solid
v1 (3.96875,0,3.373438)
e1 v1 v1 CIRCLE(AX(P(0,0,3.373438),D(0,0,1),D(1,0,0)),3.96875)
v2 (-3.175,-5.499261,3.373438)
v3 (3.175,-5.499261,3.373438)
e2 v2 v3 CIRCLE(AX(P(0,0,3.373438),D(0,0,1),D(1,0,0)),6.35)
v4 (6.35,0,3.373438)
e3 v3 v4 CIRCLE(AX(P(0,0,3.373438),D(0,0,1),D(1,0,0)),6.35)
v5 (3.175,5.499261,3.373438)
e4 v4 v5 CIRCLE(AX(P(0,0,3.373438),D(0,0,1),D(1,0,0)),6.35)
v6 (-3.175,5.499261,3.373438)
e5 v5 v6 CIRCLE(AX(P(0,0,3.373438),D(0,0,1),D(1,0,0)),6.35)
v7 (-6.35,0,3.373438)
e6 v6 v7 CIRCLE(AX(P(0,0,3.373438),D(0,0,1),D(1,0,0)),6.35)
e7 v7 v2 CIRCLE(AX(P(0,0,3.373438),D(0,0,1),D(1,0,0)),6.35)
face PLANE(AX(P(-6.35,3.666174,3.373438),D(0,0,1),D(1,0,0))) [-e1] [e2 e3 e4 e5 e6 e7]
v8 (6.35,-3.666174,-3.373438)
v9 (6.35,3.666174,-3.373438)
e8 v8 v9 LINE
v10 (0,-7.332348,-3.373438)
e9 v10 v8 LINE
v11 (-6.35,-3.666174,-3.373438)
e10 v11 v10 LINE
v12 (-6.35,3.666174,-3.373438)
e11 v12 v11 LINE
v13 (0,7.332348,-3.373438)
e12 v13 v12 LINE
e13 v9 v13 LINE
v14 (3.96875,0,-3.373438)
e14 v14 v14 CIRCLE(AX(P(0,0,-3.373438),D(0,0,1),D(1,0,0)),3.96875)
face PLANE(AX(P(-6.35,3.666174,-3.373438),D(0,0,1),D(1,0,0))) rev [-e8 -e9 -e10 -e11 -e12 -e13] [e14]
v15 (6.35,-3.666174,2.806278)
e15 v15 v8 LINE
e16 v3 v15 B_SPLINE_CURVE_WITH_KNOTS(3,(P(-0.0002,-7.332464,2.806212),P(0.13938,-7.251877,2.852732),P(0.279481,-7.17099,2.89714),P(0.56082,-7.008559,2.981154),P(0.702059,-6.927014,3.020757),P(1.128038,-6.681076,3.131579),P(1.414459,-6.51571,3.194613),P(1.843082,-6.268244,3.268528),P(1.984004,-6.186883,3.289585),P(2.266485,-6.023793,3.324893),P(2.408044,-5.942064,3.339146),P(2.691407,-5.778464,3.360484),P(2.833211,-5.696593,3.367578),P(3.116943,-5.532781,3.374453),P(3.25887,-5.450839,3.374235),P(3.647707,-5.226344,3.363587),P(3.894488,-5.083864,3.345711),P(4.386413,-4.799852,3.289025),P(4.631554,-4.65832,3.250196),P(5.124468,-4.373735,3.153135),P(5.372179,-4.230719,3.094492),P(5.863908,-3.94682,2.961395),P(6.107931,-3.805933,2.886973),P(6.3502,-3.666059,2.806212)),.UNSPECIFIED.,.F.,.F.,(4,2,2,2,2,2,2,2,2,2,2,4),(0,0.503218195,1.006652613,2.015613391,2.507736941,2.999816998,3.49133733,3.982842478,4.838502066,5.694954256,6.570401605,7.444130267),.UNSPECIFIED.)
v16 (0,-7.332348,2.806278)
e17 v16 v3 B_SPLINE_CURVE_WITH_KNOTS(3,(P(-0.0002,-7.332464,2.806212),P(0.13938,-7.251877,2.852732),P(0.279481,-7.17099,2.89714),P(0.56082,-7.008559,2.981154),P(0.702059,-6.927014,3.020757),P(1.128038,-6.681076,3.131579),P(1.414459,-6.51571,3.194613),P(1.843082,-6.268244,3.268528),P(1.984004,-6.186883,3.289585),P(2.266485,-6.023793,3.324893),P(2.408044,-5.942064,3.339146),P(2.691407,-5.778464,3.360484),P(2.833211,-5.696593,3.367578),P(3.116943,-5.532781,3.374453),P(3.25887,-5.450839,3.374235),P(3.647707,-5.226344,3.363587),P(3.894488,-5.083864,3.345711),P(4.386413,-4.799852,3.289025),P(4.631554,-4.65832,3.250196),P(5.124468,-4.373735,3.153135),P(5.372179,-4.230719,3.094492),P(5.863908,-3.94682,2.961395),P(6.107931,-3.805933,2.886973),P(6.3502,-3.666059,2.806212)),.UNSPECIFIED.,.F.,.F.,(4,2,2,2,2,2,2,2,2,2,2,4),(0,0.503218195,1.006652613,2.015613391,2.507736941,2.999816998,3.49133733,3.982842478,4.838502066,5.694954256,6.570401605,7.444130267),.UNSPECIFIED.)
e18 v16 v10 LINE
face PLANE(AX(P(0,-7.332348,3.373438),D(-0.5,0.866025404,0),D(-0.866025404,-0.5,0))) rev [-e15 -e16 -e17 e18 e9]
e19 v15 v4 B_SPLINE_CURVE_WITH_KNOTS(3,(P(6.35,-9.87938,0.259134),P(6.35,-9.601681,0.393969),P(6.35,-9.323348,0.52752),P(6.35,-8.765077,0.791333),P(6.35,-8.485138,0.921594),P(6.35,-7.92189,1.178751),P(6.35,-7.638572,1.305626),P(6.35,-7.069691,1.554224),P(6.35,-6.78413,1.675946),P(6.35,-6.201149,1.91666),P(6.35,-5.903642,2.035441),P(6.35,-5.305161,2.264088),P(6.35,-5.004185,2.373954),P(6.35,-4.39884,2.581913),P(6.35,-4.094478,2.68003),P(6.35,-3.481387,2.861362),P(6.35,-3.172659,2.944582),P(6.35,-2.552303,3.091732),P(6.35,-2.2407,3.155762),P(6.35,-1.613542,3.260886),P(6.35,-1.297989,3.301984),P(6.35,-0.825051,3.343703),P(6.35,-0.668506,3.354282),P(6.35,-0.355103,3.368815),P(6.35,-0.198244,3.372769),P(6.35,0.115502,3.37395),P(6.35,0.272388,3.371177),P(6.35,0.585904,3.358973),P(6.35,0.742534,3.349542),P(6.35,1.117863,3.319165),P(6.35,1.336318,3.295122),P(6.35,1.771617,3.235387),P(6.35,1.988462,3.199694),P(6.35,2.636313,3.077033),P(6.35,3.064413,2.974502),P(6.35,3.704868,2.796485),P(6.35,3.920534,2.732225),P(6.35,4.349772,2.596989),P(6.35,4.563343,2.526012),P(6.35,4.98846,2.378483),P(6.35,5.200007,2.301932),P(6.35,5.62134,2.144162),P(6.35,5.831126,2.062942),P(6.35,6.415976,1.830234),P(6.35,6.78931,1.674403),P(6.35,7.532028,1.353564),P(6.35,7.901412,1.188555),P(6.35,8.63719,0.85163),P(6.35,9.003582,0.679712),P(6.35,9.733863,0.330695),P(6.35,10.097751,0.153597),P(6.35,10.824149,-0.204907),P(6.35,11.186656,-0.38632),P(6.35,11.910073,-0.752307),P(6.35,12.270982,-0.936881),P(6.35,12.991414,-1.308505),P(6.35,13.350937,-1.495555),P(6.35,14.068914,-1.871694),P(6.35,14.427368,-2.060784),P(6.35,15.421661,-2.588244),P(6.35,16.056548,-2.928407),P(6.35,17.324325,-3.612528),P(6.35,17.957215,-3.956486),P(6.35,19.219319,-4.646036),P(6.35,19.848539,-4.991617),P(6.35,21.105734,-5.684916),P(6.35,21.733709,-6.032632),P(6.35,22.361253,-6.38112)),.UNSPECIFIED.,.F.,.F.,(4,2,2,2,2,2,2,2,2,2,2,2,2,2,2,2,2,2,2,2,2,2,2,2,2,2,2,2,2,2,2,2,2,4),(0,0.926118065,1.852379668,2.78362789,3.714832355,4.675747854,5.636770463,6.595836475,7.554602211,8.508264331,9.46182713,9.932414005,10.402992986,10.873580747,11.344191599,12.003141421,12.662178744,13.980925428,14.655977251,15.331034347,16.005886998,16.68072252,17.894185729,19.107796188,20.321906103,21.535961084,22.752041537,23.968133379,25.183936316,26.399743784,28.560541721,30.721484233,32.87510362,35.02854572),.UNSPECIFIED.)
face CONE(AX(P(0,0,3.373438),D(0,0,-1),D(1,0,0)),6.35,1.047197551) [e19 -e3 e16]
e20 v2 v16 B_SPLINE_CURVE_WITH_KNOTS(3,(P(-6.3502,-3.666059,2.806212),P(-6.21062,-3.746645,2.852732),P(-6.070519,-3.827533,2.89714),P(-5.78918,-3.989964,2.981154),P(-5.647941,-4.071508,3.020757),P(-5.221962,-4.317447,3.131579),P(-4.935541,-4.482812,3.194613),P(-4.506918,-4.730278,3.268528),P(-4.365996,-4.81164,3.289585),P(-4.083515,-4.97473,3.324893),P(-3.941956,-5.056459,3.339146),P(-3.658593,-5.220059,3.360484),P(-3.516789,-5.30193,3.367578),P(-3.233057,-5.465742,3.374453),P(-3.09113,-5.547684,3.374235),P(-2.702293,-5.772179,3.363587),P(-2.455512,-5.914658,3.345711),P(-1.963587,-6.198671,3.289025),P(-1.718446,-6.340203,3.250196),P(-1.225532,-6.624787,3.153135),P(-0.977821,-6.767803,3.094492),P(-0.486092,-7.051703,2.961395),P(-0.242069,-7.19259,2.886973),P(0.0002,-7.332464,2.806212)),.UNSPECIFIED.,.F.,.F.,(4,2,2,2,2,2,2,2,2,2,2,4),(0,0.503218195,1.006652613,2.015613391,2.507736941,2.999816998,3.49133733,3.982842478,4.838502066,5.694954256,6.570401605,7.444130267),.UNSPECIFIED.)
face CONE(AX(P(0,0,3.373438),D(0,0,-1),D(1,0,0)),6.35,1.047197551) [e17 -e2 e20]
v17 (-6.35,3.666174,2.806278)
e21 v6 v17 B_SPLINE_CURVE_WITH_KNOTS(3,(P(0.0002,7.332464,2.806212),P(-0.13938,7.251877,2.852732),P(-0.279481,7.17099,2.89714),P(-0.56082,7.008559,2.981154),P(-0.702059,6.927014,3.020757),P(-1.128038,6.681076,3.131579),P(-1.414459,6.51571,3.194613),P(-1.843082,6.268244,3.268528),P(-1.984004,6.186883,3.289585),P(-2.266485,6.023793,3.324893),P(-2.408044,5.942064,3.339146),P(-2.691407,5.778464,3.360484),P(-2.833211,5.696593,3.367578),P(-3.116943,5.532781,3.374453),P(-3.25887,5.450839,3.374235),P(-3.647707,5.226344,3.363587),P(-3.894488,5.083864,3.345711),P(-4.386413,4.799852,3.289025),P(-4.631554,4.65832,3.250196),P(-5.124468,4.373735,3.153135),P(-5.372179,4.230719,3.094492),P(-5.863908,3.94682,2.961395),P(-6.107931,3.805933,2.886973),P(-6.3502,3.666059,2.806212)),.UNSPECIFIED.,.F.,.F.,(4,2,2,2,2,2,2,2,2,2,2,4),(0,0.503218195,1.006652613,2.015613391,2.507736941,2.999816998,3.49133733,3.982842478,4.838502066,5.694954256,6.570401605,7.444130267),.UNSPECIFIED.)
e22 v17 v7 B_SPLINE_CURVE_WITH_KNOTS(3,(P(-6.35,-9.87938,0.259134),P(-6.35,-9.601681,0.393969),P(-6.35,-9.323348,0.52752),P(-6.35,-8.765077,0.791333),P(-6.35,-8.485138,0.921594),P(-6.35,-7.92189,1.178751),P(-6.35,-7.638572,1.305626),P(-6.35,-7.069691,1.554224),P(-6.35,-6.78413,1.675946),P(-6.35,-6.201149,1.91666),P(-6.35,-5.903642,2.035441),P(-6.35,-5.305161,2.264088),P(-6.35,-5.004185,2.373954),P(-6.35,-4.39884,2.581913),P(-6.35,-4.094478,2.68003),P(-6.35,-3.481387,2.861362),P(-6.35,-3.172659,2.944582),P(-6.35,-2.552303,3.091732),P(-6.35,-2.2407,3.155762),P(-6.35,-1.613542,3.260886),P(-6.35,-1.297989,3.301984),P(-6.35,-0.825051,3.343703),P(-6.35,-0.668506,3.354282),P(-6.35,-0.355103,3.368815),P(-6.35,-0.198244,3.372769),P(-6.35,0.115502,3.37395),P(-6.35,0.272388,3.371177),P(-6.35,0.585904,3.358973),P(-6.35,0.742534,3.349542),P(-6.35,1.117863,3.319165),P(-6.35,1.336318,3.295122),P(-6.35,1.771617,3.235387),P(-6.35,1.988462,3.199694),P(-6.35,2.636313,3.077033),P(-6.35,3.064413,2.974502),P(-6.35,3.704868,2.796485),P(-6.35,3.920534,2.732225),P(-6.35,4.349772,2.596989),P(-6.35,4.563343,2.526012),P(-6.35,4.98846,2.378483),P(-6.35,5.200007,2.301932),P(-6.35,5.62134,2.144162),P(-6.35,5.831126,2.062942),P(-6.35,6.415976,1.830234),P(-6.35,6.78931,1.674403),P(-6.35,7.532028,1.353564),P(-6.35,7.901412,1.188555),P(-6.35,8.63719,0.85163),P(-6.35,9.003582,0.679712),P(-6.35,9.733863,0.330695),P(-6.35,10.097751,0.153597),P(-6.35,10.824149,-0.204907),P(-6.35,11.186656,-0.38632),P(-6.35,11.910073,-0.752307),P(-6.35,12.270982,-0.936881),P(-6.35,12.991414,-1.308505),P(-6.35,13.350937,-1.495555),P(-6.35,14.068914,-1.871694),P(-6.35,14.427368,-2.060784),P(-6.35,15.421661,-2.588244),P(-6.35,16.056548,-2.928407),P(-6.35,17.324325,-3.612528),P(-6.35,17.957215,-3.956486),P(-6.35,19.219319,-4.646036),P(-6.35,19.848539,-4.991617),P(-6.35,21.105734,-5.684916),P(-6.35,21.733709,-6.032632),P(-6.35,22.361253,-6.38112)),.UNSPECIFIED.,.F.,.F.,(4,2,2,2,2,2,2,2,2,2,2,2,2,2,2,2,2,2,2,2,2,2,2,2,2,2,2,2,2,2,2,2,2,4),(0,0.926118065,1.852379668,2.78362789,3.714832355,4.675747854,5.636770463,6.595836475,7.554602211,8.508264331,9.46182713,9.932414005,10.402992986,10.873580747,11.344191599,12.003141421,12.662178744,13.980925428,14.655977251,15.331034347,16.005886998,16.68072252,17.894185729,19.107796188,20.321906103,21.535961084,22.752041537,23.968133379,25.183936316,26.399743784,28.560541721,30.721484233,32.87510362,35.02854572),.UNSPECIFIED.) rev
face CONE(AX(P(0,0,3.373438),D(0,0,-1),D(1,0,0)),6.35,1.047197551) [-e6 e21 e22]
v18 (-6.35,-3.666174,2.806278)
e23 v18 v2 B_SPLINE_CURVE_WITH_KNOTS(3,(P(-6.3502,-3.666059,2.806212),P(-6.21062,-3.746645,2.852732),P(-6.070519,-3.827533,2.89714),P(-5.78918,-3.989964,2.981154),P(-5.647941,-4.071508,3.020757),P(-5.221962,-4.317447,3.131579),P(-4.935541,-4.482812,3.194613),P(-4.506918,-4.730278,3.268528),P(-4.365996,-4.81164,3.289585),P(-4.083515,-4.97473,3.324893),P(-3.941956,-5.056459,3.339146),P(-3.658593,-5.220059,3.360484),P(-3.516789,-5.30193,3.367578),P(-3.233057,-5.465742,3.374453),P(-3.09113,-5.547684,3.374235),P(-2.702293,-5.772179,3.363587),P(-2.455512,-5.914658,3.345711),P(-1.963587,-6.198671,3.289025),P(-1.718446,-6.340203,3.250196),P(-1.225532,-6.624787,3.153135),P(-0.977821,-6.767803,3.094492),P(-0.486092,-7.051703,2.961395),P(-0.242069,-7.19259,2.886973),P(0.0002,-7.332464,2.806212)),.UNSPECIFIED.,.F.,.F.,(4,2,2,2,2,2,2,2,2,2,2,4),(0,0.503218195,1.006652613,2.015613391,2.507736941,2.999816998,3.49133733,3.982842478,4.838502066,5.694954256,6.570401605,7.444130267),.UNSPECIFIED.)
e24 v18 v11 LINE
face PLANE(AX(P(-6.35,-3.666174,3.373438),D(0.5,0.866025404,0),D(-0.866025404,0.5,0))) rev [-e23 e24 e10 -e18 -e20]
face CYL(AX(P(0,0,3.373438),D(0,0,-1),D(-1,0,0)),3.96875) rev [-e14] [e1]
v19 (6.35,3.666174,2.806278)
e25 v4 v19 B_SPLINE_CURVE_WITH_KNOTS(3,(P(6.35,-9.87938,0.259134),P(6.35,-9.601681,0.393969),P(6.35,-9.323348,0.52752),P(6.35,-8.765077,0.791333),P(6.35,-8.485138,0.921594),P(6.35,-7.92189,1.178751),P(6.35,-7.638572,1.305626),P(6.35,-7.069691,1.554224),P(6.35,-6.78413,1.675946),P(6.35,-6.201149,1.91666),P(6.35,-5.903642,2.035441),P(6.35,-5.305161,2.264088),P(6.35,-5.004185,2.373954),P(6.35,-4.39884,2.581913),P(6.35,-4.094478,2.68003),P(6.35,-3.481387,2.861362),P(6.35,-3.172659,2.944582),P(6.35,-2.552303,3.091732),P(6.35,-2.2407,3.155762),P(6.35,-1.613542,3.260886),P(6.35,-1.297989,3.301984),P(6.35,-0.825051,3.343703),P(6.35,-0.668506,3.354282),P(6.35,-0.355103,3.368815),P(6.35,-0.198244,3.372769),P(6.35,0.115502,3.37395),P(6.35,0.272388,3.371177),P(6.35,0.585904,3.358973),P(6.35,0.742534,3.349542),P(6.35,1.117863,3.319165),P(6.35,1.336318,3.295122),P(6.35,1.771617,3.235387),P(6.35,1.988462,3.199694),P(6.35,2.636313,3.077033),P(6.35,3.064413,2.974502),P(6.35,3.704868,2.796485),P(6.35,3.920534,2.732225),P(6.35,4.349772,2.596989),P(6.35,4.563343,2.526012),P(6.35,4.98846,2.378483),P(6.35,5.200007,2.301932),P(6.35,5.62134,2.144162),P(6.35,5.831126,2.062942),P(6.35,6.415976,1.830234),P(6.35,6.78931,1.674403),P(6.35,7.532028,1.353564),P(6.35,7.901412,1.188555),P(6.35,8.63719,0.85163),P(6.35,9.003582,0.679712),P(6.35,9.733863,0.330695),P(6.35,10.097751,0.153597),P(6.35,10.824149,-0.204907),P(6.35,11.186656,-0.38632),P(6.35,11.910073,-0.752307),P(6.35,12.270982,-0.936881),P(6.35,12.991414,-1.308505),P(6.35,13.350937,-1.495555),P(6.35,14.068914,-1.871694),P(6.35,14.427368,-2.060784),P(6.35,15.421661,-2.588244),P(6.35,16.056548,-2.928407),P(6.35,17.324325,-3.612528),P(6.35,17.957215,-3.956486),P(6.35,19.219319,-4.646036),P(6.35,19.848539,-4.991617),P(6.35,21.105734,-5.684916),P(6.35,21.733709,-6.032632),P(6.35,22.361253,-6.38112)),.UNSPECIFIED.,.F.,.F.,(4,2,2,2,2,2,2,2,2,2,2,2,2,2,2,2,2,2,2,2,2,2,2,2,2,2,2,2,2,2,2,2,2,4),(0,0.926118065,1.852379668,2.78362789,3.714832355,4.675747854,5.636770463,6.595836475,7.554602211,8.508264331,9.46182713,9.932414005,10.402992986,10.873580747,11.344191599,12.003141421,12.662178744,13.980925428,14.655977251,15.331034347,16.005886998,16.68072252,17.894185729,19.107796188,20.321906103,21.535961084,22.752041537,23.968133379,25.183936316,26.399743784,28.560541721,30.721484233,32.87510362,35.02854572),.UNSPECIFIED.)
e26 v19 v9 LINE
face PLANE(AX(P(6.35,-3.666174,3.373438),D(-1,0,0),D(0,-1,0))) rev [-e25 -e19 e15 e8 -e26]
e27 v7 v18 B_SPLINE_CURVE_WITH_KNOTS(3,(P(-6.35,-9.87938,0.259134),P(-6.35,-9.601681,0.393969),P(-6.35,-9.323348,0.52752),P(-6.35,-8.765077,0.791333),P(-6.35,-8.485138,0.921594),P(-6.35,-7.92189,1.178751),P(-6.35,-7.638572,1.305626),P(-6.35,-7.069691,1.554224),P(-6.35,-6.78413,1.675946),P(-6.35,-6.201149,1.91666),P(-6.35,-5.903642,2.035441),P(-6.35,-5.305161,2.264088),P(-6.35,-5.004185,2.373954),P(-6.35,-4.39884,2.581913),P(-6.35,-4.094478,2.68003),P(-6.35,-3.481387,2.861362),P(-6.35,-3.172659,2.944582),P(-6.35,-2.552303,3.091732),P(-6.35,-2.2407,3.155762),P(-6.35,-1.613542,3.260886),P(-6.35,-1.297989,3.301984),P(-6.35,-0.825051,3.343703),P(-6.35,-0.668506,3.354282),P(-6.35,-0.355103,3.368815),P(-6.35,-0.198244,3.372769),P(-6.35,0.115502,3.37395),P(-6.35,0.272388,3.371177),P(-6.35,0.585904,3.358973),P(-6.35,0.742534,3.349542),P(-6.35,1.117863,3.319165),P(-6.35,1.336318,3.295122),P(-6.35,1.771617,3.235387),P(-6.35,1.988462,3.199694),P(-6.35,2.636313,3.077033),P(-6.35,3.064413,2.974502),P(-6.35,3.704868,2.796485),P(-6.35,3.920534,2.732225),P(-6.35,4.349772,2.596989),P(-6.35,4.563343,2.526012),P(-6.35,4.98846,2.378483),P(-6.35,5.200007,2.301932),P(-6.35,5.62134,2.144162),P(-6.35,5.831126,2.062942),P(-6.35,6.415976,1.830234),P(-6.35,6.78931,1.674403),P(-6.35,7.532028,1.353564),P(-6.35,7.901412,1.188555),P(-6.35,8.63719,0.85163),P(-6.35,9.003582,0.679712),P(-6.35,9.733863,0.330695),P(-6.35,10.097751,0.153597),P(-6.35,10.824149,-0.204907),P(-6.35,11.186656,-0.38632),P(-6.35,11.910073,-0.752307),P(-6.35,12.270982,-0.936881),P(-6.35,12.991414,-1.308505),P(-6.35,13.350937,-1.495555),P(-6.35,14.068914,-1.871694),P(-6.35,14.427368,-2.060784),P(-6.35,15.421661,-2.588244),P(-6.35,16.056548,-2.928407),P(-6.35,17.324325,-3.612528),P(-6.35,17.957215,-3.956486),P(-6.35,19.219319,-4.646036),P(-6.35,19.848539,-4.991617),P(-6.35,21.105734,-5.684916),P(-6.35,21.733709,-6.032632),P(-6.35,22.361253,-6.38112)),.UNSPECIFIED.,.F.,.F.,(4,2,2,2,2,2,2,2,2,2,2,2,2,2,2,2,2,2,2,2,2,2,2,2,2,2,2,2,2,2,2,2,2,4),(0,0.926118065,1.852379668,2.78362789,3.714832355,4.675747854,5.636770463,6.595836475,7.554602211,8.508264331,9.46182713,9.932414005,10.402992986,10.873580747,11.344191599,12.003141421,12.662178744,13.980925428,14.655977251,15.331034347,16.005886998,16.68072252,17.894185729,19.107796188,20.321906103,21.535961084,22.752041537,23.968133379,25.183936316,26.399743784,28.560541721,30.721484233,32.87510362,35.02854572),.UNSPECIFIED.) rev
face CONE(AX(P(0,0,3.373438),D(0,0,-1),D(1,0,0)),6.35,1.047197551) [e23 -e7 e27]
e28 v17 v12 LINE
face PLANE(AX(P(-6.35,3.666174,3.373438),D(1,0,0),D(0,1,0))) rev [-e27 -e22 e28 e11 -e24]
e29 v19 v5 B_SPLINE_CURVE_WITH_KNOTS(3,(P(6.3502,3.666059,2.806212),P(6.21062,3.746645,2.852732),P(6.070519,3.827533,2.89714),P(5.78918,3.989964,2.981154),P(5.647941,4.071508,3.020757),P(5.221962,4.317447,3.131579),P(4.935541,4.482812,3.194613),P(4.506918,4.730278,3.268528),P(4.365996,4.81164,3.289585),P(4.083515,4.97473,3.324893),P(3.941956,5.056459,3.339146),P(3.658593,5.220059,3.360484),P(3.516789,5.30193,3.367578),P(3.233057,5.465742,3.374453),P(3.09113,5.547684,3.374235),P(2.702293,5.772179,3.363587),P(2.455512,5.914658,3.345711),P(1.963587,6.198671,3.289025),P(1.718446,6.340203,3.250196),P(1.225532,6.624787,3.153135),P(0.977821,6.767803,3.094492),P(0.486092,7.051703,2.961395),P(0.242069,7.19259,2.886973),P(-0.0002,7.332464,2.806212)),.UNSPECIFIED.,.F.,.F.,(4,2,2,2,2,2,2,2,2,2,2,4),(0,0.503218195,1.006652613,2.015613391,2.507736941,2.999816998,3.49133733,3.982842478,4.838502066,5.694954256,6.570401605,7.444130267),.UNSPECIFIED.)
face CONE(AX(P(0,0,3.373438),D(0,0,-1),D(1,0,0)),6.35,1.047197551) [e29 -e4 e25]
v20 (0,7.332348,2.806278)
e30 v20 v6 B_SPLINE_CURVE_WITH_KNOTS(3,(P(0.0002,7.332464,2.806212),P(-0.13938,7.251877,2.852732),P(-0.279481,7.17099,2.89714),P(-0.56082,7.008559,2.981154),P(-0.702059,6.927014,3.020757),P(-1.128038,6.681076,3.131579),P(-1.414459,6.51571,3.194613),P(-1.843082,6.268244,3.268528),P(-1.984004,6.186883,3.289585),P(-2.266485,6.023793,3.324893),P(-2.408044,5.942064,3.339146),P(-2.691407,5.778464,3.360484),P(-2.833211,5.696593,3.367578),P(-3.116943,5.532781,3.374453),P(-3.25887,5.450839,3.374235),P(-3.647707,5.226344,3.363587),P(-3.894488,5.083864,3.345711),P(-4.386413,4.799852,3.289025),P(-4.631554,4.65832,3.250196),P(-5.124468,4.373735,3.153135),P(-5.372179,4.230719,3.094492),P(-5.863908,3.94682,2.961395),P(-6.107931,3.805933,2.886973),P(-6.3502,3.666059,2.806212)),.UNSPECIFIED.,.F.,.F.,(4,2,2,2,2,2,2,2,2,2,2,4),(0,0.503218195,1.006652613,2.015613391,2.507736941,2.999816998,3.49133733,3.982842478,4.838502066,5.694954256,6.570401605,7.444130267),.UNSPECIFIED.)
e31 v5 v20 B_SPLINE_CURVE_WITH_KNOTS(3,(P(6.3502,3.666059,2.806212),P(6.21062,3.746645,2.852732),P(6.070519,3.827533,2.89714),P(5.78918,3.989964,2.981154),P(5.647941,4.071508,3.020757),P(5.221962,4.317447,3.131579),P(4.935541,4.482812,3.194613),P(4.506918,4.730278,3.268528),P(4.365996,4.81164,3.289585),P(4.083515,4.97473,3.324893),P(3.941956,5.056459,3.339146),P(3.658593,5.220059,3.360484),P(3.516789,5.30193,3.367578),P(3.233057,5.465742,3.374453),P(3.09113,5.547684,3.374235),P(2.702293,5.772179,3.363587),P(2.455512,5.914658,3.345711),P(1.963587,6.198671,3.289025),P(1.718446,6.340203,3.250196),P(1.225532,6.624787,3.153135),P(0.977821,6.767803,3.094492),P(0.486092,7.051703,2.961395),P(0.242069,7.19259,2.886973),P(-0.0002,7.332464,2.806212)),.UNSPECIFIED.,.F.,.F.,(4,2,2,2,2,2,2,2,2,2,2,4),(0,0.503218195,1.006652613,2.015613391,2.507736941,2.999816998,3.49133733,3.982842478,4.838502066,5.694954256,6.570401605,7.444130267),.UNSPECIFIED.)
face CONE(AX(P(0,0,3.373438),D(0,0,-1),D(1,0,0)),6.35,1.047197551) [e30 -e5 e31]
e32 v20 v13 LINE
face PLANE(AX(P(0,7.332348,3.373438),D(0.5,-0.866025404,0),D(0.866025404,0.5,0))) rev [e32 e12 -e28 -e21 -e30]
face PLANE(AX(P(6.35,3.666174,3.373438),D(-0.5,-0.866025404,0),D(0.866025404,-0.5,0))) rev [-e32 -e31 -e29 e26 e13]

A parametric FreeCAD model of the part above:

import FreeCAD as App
import Part
import Sketcher
from FreeCAD import Vector
Q = App.Units.Quantity


def faces_at(feature, points):
    """Names of the faces that lie closest to the given points."""
    faces = feature.Shape.Faces
    near = lambda p: min(range(len(faces)), key=lambda i: faces[i].distToShape(Part.Vertex(*p))[0])
    return sorted({f"Face{near(p) + 1}" for p in points})


def add_polygon(sketch, points):
    """Adds a closed chain of lines whose ends are joined by coincident constraints."""
    first, n = sketch.GeometryCount, len(points)
    for a, b in zip(points, points[1:] + points[:1]):
        sketch.addGeometry(Part.LineSegment(App.Vector(*a, 0), App.Vector(*b, 0)), False)
    for i in range(n):
        sketch.addConstraint(Sketcher.Constraint("Coincident", first + i, 2, first + (i + 1) % n, 1))

doc = App.newDocument("Part")
params = doc.addObject("Spreadsheet::Sheet", "Params")
for row, (alias, value) in enumerate([
    ("sketch1_diameter", "0.3125 in"),
    ("pad1_length", "0.265625 in"),
    ("sketch2_diameter", "0.5 in"),
    ("pad2_length", "1 in"),
    ("draft_angle", "60 deg"),
], start=1):
    params.set(f"A{row}", alias)
    params.set(f"B{row}", "=" + value)
    params.setAlias(f"B{row}", alias)

body = doc.addObject("PartDesign::Body", "Body")

# Sketch on XY plane
sketch1 = doc.addObject("Sketcher::SketchObject", "Sketch")
body.addObject(sketch1)
sketch1.AttachmentSupport = (doc.XY_Plane, [""])
sketch1.MapMode = "FlatFace"
add_polygon(sketch1, [(-6.3, 3.7), (-6.3, -3.7), (0, -7.3), (6.3, -3.7), (6.3, 3.7), (0, 7.3)])  # lines 0-5
sketch1.addGeometry(Part.Circle(Vector(0, 0, 0), Vector(0, 0, 1), 4), False)  # 6
sketch1.addConstraint([
    Sketcher.Constraint("Vertical", 0),
    Sketcher.Constraint("Vertical", 3),
    Sketcher.Constraint("Coincident", 6, 3, -1, 1),
    Sketcher.Constraint("Symmetric", 0, 2, 3, 2, -1, 1),
    Sketcher.Constraint("Symmetric", 1, 2, 4, 2, -1, 1),
    Sketcher.Constraint("PointOnObject", 1, 2, -2),
    Sketcher.Constraint("Parallel", 2, 5),
    Sketcher.Constraint("Horizontal", 0, 2, 2, 2),
    Sketcher.Constraint("Diameter", 6, Q("0.3125 in")),
    Sketcher.Constraint("Angle", 1, Q("-30 deg")),
    Sketcher.Constraint("DistanceX", 0, 2, 2, 2, Q("0.5 in")),
    Sketcher.Constraint("DistanceY", 0, 2, 0, 1, Q("7.332348 mm")),
])
sketch1.setExpression("Constraints[14]", "Params.sketch1_diameter")
pad1 = doc.addObject("PartDesign::Pad", "Pad")
body.addObject(pad1)
pad1.Profile = sketch1
pad1.setExpression("Length", "Params.pad1_length")
pad1.Midplane = True
body2 = doc.addObject("PartDesign::Body", "Body001")

# Sketch on XY plane
sketch2 = doc.addObject("Sketcher::SketchObject", "Sketch001")
body2.addObject(sketch2)
sketch2.AttachmentSupport = (doc.getObject("XY_Plane001"), [""])
sketch2.MapMode = "FlatFace"
sketch2.AttachmentOffset = App.Placement(Vector(0, 0, 3.373438), App.Rotation())
add_polygon(sketch2, [(-53, 54), (-53, -54), (53, -54), (53, 54)])  # lines 0-3
sketch2.addGeometry(Part.Circle(Vector(0, 0, 0), Vector(0, 0, 1), 6), False)  # 4
sketch2.addConstraint([
    Sketcher.Constraint("Vertical", 0),
    Sketcher.Constraint("Horizontal", 1),
    Sketcher.Constraint("Vertical", 2),
    Sketcher.Constraint("Horizontal", 3),
    Sketcher.Constraint("Coincident", 4, 3, -1, 1),
    Sketcher.Constraint("Symmetric", 0, 2, 2, 2, -1, 1),
    Sketcher.Constraint("Diameter", 4, Q("0.5 in")),
    Sketcher.Constraint("DistanceX", 1, 1, 1, 2, Q("106.796 mm")),
    Sketcher.Constraint("DistanceY", 0, 2, 0, 1, Q("108.76 mm")),
])
sketch2.setExpression("Constraints[10]", "Params.sketch2_diameter")
pad2 = doc.addObject("PartDesign::Pad", "Pad001")
body2.addObject(pad2)
pad2.Profile = sketch2
pad2.setExpression("Length", "Params.pad2_length")
pad2.Reversed = True
doc.recompute()

datumplane = doc.addObject("PartDesign::Plane", "DatumPlane")
body2.addObject(datumplane)
datumplane.AttachmentSupport = (doc.getObject("XY_Plane001"), [""])
datumplane.MapMode = "FlatFace"
datumplane.AttachmentOffset = App.Placement(Vector(0, 0, 3.373438), App.Rotation())
draft = doc.addObject("PartDesign::Draft", "Draft")
body2.addObject(draft)
draft.Base = (pad2, faces_at(pad2, [
    (0, -54.38, -9.327),
    (53.398, 0, -9.327),
    (0, 54.38, -9.327),
    (-53.398, 0, -9.327),
    (-6.35, 0, -9.327),
]))
draft.NeutralPlane = (datumplane, [""])
draft.setExpression("Angle", "Params.draft_angle")
draft.Reversed = True
doc.recompute()

boolean = doc.addObject("PartDesign::Boolean", "Boolean")
body.addObject(boolean)
boolean.Type = "Cut"
boolean.addObjects([body2])

doc.recompute()
